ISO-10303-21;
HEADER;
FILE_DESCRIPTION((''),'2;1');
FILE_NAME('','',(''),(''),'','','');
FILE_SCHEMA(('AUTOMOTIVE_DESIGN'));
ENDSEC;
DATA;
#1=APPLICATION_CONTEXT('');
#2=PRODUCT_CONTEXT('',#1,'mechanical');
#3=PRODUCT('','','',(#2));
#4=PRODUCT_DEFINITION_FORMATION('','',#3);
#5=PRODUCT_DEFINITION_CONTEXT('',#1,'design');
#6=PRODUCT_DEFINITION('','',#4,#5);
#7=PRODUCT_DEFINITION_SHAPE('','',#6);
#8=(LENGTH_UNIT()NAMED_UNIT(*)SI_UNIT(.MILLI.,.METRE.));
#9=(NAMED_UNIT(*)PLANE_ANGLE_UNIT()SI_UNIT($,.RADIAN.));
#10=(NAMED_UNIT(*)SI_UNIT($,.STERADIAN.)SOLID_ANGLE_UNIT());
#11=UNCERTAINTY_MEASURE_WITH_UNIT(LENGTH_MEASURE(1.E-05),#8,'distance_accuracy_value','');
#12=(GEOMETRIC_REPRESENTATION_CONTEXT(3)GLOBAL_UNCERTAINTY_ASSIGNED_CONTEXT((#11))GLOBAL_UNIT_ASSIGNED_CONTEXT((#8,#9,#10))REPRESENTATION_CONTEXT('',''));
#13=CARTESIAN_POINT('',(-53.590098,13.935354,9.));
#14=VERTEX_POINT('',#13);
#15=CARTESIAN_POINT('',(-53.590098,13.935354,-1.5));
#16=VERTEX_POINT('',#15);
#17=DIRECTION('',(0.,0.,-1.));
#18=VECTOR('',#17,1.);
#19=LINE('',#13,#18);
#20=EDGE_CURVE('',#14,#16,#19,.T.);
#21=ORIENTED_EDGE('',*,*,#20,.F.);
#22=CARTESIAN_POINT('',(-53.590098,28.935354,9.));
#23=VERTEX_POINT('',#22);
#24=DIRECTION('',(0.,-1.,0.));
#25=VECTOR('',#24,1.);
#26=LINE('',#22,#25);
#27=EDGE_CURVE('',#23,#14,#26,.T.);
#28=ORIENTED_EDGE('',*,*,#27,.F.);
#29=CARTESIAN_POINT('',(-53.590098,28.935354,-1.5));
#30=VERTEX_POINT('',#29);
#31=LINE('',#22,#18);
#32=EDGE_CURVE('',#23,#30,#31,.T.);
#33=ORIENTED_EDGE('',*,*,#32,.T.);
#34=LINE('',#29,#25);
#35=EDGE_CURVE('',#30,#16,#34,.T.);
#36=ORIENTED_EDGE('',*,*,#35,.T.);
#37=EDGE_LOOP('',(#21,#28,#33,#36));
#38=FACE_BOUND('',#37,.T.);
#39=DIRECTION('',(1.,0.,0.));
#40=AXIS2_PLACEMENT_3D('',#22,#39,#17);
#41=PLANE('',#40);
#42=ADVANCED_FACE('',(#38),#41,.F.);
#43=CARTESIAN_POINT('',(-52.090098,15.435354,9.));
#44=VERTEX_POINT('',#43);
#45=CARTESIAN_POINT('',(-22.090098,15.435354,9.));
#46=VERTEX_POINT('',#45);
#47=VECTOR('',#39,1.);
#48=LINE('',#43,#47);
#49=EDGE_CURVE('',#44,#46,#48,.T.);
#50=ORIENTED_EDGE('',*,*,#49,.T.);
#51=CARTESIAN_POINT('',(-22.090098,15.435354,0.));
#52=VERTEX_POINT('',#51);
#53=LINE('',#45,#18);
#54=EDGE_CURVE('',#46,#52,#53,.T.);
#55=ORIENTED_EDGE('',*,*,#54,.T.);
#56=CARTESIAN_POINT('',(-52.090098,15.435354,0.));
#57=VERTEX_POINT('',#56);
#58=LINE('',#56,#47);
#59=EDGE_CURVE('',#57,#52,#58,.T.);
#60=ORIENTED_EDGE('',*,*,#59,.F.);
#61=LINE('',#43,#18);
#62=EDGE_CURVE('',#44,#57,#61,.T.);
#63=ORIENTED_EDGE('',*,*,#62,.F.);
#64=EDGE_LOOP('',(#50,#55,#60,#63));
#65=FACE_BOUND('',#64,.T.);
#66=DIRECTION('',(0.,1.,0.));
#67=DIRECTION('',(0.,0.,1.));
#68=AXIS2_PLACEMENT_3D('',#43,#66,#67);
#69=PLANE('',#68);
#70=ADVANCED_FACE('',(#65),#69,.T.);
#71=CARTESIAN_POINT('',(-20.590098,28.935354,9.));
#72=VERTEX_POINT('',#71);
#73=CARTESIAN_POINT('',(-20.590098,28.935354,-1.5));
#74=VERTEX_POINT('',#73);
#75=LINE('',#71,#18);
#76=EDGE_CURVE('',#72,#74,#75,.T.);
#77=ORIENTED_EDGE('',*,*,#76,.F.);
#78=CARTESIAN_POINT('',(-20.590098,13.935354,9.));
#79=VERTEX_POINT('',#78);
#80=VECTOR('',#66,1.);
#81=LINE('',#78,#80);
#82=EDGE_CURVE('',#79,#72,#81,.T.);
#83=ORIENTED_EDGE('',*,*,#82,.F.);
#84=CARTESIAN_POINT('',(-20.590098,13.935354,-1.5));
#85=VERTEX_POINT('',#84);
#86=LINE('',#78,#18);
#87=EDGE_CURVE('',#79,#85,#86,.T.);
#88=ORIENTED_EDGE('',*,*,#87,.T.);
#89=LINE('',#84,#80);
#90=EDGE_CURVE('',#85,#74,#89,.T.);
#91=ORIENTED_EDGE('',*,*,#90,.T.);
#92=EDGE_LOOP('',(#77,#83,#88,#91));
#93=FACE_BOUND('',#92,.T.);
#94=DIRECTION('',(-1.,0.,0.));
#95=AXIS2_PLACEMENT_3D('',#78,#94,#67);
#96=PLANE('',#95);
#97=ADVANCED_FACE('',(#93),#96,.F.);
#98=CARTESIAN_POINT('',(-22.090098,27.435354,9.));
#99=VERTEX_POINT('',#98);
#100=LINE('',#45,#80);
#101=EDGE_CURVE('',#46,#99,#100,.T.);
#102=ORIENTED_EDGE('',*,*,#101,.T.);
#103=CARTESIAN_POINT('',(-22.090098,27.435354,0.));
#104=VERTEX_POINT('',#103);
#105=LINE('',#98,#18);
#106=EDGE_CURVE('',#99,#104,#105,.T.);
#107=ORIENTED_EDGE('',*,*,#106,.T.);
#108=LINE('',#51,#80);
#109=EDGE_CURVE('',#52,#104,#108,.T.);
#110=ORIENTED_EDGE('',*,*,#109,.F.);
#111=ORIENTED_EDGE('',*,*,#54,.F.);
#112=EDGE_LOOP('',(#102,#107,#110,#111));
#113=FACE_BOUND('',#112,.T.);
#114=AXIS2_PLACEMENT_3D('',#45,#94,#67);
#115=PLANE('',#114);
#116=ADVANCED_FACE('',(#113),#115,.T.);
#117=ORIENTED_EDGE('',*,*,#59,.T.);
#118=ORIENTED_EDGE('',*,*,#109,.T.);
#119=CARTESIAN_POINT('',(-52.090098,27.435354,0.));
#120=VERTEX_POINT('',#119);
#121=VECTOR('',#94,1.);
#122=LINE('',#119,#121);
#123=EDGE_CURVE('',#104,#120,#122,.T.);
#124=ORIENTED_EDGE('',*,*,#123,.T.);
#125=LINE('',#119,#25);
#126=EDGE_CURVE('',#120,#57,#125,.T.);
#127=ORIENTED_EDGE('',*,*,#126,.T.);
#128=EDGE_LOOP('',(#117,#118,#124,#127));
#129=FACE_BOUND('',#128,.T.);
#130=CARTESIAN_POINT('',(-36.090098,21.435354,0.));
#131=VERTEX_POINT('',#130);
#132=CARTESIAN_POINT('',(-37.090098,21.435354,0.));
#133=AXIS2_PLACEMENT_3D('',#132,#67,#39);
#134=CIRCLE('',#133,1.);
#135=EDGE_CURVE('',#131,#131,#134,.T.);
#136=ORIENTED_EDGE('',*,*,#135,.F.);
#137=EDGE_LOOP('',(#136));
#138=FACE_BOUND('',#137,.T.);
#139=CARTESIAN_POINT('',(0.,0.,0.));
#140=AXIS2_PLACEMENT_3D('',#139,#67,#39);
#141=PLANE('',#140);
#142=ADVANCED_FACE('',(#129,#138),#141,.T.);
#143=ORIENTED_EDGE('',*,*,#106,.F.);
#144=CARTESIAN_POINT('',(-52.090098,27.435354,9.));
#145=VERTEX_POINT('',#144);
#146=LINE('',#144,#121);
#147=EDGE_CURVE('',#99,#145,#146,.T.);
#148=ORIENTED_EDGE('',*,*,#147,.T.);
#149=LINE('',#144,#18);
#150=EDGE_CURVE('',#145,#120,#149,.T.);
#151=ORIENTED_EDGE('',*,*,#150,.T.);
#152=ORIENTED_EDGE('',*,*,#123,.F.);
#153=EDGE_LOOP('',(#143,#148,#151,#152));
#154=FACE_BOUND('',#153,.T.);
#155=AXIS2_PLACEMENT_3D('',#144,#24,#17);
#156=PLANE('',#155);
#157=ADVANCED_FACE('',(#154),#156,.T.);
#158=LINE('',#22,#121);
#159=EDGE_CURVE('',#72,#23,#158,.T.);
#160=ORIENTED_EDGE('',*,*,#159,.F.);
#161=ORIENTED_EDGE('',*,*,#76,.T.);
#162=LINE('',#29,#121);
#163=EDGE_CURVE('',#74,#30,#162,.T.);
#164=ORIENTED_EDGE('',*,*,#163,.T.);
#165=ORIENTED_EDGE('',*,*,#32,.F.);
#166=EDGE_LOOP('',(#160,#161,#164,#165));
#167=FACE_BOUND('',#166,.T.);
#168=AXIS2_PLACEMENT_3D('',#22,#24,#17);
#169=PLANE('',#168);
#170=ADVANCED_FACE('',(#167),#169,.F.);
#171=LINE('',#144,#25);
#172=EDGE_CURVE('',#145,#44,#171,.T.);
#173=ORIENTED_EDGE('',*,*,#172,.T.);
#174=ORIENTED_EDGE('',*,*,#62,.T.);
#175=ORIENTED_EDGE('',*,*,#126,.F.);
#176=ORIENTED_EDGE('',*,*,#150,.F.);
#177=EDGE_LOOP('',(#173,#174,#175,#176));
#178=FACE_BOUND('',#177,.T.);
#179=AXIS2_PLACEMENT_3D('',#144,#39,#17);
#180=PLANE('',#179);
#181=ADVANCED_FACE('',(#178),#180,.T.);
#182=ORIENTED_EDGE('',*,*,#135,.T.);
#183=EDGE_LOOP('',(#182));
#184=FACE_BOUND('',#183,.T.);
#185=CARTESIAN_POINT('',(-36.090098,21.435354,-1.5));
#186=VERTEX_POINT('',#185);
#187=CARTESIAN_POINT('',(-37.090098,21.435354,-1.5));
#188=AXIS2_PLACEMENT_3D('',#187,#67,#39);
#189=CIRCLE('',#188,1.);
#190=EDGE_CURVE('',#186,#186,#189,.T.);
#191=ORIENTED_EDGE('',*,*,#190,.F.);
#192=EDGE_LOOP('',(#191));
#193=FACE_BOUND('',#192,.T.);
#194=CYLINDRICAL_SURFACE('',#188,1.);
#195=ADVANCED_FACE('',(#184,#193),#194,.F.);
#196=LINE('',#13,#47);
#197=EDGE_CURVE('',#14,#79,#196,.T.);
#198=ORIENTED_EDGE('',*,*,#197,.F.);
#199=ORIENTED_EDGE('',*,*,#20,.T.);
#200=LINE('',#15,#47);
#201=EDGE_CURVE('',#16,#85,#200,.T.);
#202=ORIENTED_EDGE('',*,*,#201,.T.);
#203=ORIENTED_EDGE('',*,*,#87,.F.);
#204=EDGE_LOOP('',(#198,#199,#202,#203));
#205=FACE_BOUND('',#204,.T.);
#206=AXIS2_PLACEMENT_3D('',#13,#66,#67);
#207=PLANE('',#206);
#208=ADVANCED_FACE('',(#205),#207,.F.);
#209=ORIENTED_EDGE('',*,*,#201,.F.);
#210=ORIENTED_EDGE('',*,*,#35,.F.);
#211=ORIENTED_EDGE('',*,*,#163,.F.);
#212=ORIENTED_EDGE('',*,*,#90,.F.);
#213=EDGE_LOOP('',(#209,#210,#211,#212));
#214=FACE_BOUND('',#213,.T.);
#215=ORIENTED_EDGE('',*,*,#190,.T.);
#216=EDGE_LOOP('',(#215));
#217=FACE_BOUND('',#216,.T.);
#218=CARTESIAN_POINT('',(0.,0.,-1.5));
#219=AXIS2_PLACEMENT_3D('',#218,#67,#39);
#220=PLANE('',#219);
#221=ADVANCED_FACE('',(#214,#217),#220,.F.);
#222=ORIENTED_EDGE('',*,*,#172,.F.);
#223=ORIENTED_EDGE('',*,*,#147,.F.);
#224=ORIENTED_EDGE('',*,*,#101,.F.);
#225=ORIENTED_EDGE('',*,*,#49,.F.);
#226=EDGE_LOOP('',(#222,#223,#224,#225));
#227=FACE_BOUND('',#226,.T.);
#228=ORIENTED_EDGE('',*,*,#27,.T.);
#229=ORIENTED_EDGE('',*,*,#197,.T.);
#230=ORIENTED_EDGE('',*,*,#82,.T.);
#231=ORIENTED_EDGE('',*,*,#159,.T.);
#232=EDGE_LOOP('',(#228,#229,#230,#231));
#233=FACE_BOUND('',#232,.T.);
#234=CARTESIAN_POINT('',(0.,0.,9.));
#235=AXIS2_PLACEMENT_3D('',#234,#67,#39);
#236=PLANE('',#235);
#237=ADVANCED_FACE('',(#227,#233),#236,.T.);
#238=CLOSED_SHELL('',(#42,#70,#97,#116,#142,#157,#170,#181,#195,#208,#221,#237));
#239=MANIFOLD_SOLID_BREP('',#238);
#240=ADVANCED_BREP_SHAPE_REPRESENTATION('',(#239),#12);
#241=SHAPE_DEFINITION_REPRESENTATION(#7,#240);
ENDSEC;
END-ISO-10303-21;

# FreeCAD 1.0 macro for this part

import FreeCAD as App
import Part
import Sketcher

doc = App.newDocument("Part")
body = doc.addObject("PartDesign::Body", "Body")

# Sketch on XY plane
sketch1 = body.newObject("Sketcher::SketchObject", "Sketch")
sketch1.AttachmentSupport = (doc.getObject("XY_Plane"), [""])
sketch1.MapMode = "FlatFace"
sketch1.addGeometry(Part.LineSegment(App.Vector(-54, 29, 0), App.Vector(-54, 14, 0)), False)
sketch1.addGeometry(Part.LineSegment(App.Vector(-54, 14, 0), App.Vector(-21, 14, 0)), False)
sketch1.addGeometry(Part.LineSegment(App.Vector(-21, 14, 0), App.Vector(-21, 29, 0)), False)
sketch1.addGeometry(Part.LineSegment(App.Vector(-21, 29, 0), App.Vector(-54, 29, 0)), False)
sketch1.addGeometry(Part.LineSegment(App.Vector(-22, 15, 0), App.Vector(-52, 15, 0)), False)
sketch1.addGeometry(Part.LineSegment(App.Vector(-52, 15, 0), App.Vector(-52, 27, 0)), False)
sketch1.addGeometry(Part.LineSegment(App.Vector(-52, 27, 0), App.Vector(-22, 27, 0)), False)
sketch1.addGeometry(Part.LineSegment(App.Vector(-22, 27, 0), App.Vector(-22, 15, 0)), False)
sketch1.addConstraint(Sketcher.Constraint("Coincident", 0, 2, 1, 1))
sketch1.addConstraint(Sketcher.Constraint("Coincident", 1, 2, 2, 1))
sketch1.addConstraint(Sketcher.Constraint("Coincident", 2, 2, 3, 1))
sketch1.addConstraint(Sketcher.Constraint("Coincident", 3, 2, 0, 1))
sketch1.addConstraint(Sketcher.Constraint("Coincident", 4, 2, 5, 1))
sketch1.addConstraint(Sketcher.Constraint("Coincident", 5, 2, 6, 1))
sketch1.addConstraint(Sketcher.Constraint("Coincident", 6, 2, 7, 1))
sketch1.addConstraint(Sketcher.Constraint("Coincident", 7, 2, 4, 1))
sketch1.addConstraint(Sketcher.Constraint("Vertical", 0))
sketch1.addConstraint(Sketcher.Constraint("Horizontal", 1))
sketch1.addConstraint(Sketcher.Constraint("Vertical", 2))
sketch1.addConstraint(Sketcher.Constraint("Horizontal", 3))
sketch1.addConstraint(Sketcher.Constraint("Horizontal", 4))
sketch1.addConstraint(Sketcher.Constraint("Vertical", 5))
sketch1.addConstraint(Sketcher.Constraint("Horizontal", 6))
sketch1.addConstraint(Sketcher.Constraint("Vertical", 7))
sketch1.addConstraint(Sketcher.Constraint("DistanceX", 1, 1, 1, 2, 33.0))
sketch1.addConstraint(Sketcher.Constraint("DistanceX", 4, 2, 4, 1, 30.0))
sketch1.addConstraint(Sketcher.Constraint("DistanceY", 0, 2, 0, 1, 15.0))
sketch1.addConstraint(Sketcher.Constraint("DistanceY", 5, 1, 5, 2, 12.0))
sketch1.addConstraint(Sketcher.Constraint("DistanceX", 0, 2, 4, 2, 1.5))
sketch1.addConstraint(Sketcher.Constraint("DistanceY", 0, 2, 4, 2, 1.5))
sketch1.addConstraint(Sketcher.Constraint("DistanceX", 0, 2, -1, 1, 53.590098))
sketch1.addConstraint(Sketcher.Constraint("DistanceY", -1, 1, 0, 2, 13.935354))
pad1 = body.newObject("PartDesign::Pad", "Pad")
pad1.Profile = sketch1
pad1.Length = 9

# Sketch on XY plane
sketch2 = body.newObject("Sketcher::SketchObject", "Sketch001")
sketch2.AttachmentSupport = (doc.getObject("XY_Plane"), [""])
sketch2.MapMode = "FlatFace"
sketch2.addGeometry(Part.LineSegment(App.Vector(-54, 29, 0), App.Vector(-54, 14, 0)), False)
sketch2.addGeometry(Part.LineSegment(App.Vector(-54, 14, 0), App.Vector(-21, 14, 0)), False)
sketch2.addGeometry(Part.LineSegment(App.Vector(-21, 14, 0), App.Vector(-21, 29, 0)), False)
sketch2.addGeometry(Part.LineSegment(App.Vector(-21, 29, 0), App.Vector(-54, 29, 0)), False)
sketch2.addConstraint(Sketcher.Constraint("Coincident", 0, 2, 1, 1))
sketch2.addConstraint(Sketcher.Constraint("Coincident", 1, 2, 2, 1))
sketch2.addConstraint(Sketcher.Constraint("Coincident", 2, 2, 3, 1))
sketch2.addConstraint(Sketcher.Constraint("Coincident", 3, 2, 0, 1))
sketch2.addConstraint(Sketcher.Constraint("Vertical", 0))
sketch2.addConstraint(Sketcher.Constraint("Horizontal", 1))
sketch2.addConstraint(Sketcher.Constraint("Vertical", 2))
sketch2.addConstraint(Sketcher.Constraint("Horizontal", 3))
sketch2.addConstraint(Sketcher.Constraint("DistanceX", 1, 1, 1, 2, 33.0))
sketch2.addConstraint(Sketcher.Constraint("DistanceY", 0, 2, 0, 1, 15.0))
sketch2.addConstraint(Sketcher.Constraint("DistanceX", 0, 2, -1, 1, 53.590098))
sketch2.addConstraint(Sketcher.Constraint("DistanceY", -1, 1, 0, 2, 13.935354))
pad2 = body.newObject("PartDesign::Pad", "Pad001")
pad2.Profile = sketch2
pad2.Length = 1.5
pad2.Reversed = True

# Sketch on XY plane
sketch3 = body.newObject("Sketcher::SketchObject", "Sketch002")
sketch3.AttachmentSupport = (doc.getObject("XY_Plane"), [""])
sketch3.MapMode = "FlatFace"
sketch3.addGeometry(Part.Circle(App.Vector(-37.1, 21.4, 0), App.Vector(0, 0, 1), 1), False)
sketch3.addConstraint(Sketcher.Constraint("Diameter", 0, 2.0))
sketch3.addConstraint(Sketcher.Constraint("DistanceX", 0, 3, -1, 1, 37.090098))
sketch3.addConstraint(Sketcher.Constraint("DistanceY", -1, 1, 0, 3, 21.435354))
pocket1 = body.newObject("PartDesign::Pocket", "Pocket")
pocket1.Profile = sketch3
pocket1.Length = 1.5

doc.recompute()
